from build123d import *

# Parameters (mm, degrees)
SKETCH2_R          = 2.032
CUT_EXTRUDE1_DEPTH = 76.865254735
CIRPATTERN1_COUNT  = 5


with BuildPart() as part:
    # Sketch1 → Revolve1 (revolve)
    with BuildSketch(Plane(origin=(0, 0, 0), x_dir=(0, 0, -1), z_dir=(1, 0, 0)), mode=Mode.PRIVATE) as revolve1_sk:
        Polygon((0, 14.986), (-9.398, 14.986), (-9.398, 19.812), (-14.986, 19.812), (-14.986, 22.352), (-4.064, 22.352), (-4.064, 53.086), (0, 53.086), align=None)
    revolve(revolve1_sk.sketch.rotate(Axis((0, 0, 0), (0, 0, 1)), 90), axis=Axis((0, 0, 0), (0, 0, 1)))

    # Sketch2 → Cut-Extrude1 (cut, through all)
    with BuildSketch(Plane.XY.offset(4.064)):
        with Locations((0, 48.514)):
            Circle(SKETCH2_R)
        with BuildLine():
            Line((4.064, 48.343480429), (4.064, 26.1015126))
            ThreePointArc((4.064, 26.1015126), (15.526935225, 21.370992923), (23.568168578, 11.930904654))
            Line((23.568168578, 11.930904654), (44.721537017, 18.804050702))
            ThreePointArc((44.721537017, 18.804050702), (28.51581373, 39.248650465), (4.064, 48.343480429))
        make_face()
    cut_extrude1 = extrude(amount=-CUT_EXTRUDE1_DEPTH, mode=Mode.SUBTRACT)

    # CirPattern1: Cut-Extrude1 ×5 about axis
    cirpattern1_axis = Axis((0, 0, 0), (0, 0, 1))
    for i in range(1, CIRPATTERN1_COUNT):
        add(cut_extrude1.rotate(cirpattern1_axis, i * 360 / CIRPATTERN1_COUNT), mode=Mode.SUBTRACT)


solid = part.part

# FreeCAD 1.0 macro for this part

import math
import FreeCAD as App
import Part
import Sketcher
from FreeCAD import Vector
Q = App.Units.Quantity


def add_polygon(sketch, points):
    """Adds a closed chain of lines whose ends are joined by coincident constraints."""
    first, n = sketch.GeometryCount, len(points)
    for a, b in zip(points, points[1:] + points[:1]):
        sketch.addGeometry(Part.LineSegment(App.Vector(*a, 0), App.Vector(*b, 0)), False)
    for i in range(n):
        sketch.addConstraint(Sketcher.Constraint("Coincident", first + i, 2, first + (i + 1) % n, 1))

doc = App.newDocument("Part")
params = doc.addObject("Spreadsheet::Sheet", "Params")
for row, (alias, value) in enumerate([
    ("sketch1_width", "1.5 in"),
    ("sketch1_width2", "0.1 in"),
    ("sketch1_width3", "1.21 in"),
    ("sketch1_height", "0.37 in"),
    ("sketch1_height2", "0.16 in"),
    ("revolution_angle", "360 deg"),
    ("sketch2_diameter", "0.16 in"),
    ("sketch2_radius", "1.04 in"),
    ("sketch2_radius2", "1.91 in"),
], start=1):
    params.set(f"A{row}", alias)
    params.set(f"B{row}", "=" + value)
    params.setAlias(f"B{row}", alias)

body = doc.addObject("PartDesign::Body", "Body")

sketch1 = body.newObject("Sketcher::SketchObject", "Sketch")
sketch1.AttachmentSupport = (doc.getObject("YZ_Plane"), [""])
sketch1.MapMode = "FlatFace"
add_polygon(sketch1, [(15, 9.4), (15, 0), (53.1, 0), (53.1, 4.1), (22.4, 4.1), (22.4, 15), (19.8, 15), (19.8, 9.4)])
sketch1.addConstraint([
    Sketcher.Constraint("Vertical", 0),
    Sketcher.Constraint("Horizontal", 1),
    Sketcher.Constraint("Vertical", 2),
    Sketcher.Constraint("Horizontal", 3),
    Sketcher.Constraint("Vertical", 4),
    Sketcher.Constraint("Horizontal", 5),
    Sketcher.Constraint("Vertical", 6),
    Sketcher.Constraint("Horizontal", 7),
    Sketcher.Constraint("PointOnObject", 0, 2, -1),
    Sketcher.Constraint("DistanceX", 1, 1, 1, 2, Q("1.5 in")),
    Sketcher.Constraint("DistanceX", 5, 2, 5, 1, Q("0.1 in")),
    Sketcher.Constraint("DistanceX", 3, 2, 3, 1, Q("1.21 in")),
    Sketcher.Constraint("DistanceY", 0, 2, 0, 1, Q("0.37 in")),
    Sketcher.Constraint("DistanceY", 2, 1, 2, 2, Q("0.16 in")),
    Sketcher.Constraint("DistanceY", 4, 1, 4, 2, Q("0.43 in")),
    Sketcher.Constraint("DistanceX", -1, 1, 0, 2, Q("0.59 in")),
])
sketch1.setExpression("Constraints[17]", "Params.sketch1_width")
sketch1.setExpression("Constraints[18]", "Params.sketch1_width2")
sketch1.setExpression("Constraints[19]", "Params.sketch1_width3")
sketch1.setExpression("Constraints[20]", "Params.sketch1_height")
sketch1.setExpression("Constraints[21]", "Params.sketch1_height2")
revolution = body.newObject("PartDesign::Revolution", "Revolution")
revolution.Profile = sketch1
revolution.ReferenceAxis = (sketch1, ["V_Axis"])
revolution.setExpression("Angle", "Params.revolution_angle")

sketch2 = body.newObject("Sketcher::SketchObject", "Sketch001")
sketch2.AttachmentSupport = (doc.getObject("XY_Plane"), [""])
sketch2.MapMode = "FlatFace"
sketch2.AttachmentOffset = App.Placement(Vector(0, 0, 0.16 * 25.4), App.Rotation())
sketch2.addGeometry([
    Part.Circle(Vector(0, 48.5, 0), Vector(0, 0, 1), 2),
    Part.LineSegment(Vector(4.1, 48.3, 0), Vector(4.1, 26.1, 0)),
    Part.ArcOfCircle(Part.Circle(Vector(0, 0, 0), Vector(0, 0, 1), 26.4), math.radians(27), math.radians(81)),
    Part.LineSegment(Vector(23.6, 11.9, 0), Vector(44.7, 18.8, 0)),
    Part.ArcOfCircle(Part.Circle(Vector(0, 0, 0), Vector(0, 0, 1), 48.5), math.radians(23), math.radians(85)),
], False)
sketch2.addConstraint([
    Sketcher.Constraint("Coincident", 1, 2, 2, 2),
    Sketcher.Constraint("Coincident", 2, 1, 3, 1),
    Sketcher.Constraint("Coincident", 3, 2, 4, 1),
    Sketcher.Constraint("Coincident", 4, 2, 1, 1),
    Sketcher.Constraint("Vertical", 1),
    Sketcher.Constraint("Coincident", 2, 3, -1, 1),
    Sketcher.Constraint("Coincident", 4, 3, -1, 1),
    Sketcher.Constraint("PointOnObject", 0, 3, -2),
    Sketcher.Constraint("Diameter", 0, Q("0.16 in")),
    Sketcher.Constraint("Radius", 2, Q("1.04 in")),
    Sketcher.Constraint("Radius", 4, Q("1.91 in")),
    Sketcher.Constraint("Angle", 3, Q("18 deg")),
    Sketcher.Constraint("DistanceY", -1, 1, 0, 3, Q("1.91 in")),
    Sketcher.Constraint("DistanceX", -1, 1, 1, 2, Q("0.16 in")),
    Sketcher.Constraint("DistanceX", -1, 1, 2, 1, Q("23.568169 mm")),
])
sketch2.setExpression("Constraints[8]", "Params.sketch2_diameter")
sketch2.setExpression("Constraints[9]", "Params.sketch2_radius")
sketch2.setExpression("Constraints[10]", "Params.sketch2_radius2")
pocket1 = body.newObject("PartDesign::Pocket", "Pocket")
pocket1.Profile = sketch2
pocket1.Type = "ThroughAll"
doc.recompute()

polarpattern = body.newObject("PartDesign::PolarPattern", "PolarPattern")
polarpattern.Originals = [pocket1]
polarpattern.Axis = (doc.getObject("Z_Axis"), [""])
polarpattern.Angle = 360
polarpattern.Occurrences = 5
body.Tip = polarpattern

doc.recompute()
